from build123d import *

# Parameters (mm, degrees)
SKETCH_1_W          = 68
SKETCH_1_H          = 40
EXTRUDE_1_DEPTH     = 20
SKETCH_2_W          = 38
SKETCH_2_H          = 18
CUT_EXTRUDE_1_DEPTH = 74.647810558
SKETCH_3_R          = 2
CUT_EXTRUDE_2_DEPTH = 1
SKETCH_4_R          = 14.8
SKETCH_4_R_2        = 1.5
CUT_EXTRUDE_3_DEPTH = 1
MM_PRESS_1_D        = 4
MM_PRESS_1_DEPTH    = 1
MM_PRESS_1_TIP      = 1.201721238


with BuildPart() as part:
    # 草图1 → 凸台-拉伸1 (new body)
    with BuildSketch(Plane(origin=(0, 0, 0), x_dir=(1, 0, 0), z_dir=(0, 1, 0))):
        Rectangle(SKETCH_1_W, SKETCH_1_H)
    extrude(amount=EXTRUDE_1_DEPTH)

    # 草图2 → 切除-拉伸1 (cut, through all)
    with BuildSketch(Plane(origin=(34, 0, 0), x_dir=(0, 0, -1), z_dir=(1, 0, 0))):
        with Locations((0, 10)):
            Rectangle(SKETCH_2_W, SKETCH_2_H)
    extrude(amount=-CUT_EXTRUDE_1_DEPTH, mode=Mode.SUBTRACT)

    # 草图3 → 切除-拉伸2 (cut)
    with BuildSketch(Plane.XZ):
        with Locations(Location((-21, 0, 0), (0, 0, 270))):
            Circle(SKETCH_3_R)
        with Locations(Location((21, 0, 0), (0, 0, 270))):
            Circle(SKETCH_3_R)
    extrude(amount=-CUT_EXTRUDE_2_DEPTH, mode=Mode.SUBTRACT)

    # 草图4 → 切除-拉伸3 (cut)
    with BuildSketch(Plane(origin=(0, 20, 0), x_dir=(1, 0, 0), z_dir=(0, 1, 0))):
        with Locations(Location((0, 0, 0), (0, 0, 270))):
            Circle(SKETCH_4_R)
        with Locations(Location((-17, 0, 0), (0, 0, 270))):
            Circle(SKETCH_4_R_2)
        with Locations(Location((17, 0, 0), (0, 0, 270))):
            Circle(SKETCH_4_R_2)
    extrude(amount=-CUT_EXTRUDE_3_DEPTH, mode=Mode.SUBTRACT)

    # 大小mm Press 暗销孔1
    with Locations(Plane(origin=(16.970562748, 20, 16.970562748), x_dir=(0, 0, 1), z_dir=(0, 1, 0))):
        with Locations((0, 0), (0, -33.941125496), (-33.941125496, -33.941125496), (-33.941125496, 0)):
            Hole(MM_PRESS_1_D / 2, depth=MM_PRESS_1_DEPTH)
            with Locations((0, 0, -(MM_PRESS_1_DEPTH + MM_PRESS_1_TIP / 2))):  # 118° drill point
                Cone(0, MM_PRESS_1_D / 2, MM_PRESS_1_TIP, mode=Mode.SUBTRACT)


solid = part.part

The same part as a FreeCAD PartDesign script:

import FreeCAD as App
import Part
import Sketcher

doc = App.newDocument("Part")
body = doc.addObject("PartDesign::Body", "Body")

# Sketch on XZ plane
sketch1 = body.newObject("Sketcher::SketchObject", "Sketch")
sketch1.AttachmentSupport = (doc.getObject("XZ_Plane"), [""])
sketch1.MapMode = "FlatFace"
sketch1.addGeometry([
    Part.LineSegment(App.Vector(-34, -20, 0), App.Vector(-34, 20, 0)),
    Part.LineSegment(App.Vector(-34, 20, 0), App.Vector(34, 20, 0)),
    Part.LineSegment(App.Vector(34, 20, 0), App.Vector(34, -20, 0)),
    Part.LineSegment(App.Vector(34, -20, 0), App.Vector(-34, -20, 0)),
], False)
sketch1.addConstraint([
    Sketcher.Constraint("Coincident", 0, 2, 1, 1),
    Sketcher.Constraint("Coincident", 1, 2, 2, 1),
    Sketcher.Constraint("Coincident", 2, 2, 3, 1),
    Sketcher.Constraint("Coincident", 3, 2, 0, 1),
    Sketcher.Constraint("Vertical", 0),
    Sketcher.Constraint("Horizontal", 1),
    Sketcher.Constraint("Vertical", 2),
    Sketcher.Constraint("Horizontal", 3),
    Sketcher.Constraint("Symmetric", 0, 2, 2, 2, -1, 1),
    Sketcher.Constraint("DistanceX", 1, 1, 1, 2, 68.0),
    Sketcher.Constraint("DistanceY", 0, 1, 0, 2, 40.0),
])
pad1 = body.newObject("PartDesign::Pad", "Pad")
pad1.Profile = sketch1
pad1.Length = 20
pad1.Reversed = True

# Sketch on YZ plane
sketch2 = body.newObject("Sketcher::SketchObject", "Sketch001")
sketch2.AttachmentSupport = (doc.getObject("YZ_Plane"), [""])
sketch2.MapMode = "FlatFace"
sketch2.AttachmentOffset = App.Placement(App.Vector(0, 0, 34), App.Rotation())
sketch2.addGeometry([
    Part.LineSegment(App.Vector(19, 19, 0), App.Vector(1, 19, 0)),
    Part.LineSegment(App.Vector(1, 19, 0), App.Vector(1, -19, 0)),
    Part.LineSegment(App.Vector(1, -19, 0), App.Vector(19, -19, 0)),
    Part.LineSegment(App.Vector(19, -19, 0), App.Vector(19, 19, 0)),
], False)
sketch2.addConstraint([
    Sketcher.Constraint("Coincident", 0, 2, 1, 1),
    Sketcher.Constraint("Coincident", 1, 2, 2, 1),
    Sketcher.Constraint("Coincident", 2, 2, 3, 1),
    Sketcher.Constraint("Coincident", 3, 2, 0, 1),
    Sketcher.Constraint("Horizontal", 0),
    Sketcher.Constraint("Vertical", 1),
    Sketcher.Constraint("Horizontal", 2),
    Sketcher.Constraint("Vertical", 3),
    Sketcher.Constraint("DistanceX", 0, 2, 0, 1, 18.0),
    Sketcher.Constraint("DistanceY", 1, 2, 1, 1, 38.0),
    Sketcher.Constraint("DistanceX", -1, 1, 0, 2, 1.0),
    Sketcher.Constraint("DistanceY", -1, 1, 0, 2, 19.0),
])
pocket1 = body.newObject("PartDesign::Pocket", "Pocket")
pocket1.Profile = sketch2
pocket1.Type = "ThroughAll"

# Sketch on XZ plane
sketch3 = body.newObject("Sketcher::SketchObject", "Sketch002")
sketch3.AttachmentSupport = (doc.getObject("XZ_Plane"), [""])
sketch3.MapMode = "FlatFace"
sketch3.addGeometry([
    Part.Circle(App.Vector(-21, 0, 0), App.Vector(0, 0, 1), 2),
    Part.Circle(App.Vector(21, 0, 0), App.Vector(0, 0, 1), 2),
], False)
sketch3.addConstraint([
    Sketcher.Constraint("Equal", 0, 1),
    Sketcher.Constraint("Symmetric", 0, 3, 1, 3, -1, 1),
    Sketcher.Constraint("PointOnObject", 0, 3, -1),
    Sketcher.Constraint("Diameter", 0, 4.0),
    Sketcher.Constraint("DistanceX", 0, 3, -1, 1, 21.0),
])
pocket2 = body.newObject("PartDesign::Pocket", "Pocket001")
pocket2.Profile = sketch3
pocket2.Length = 1

# Sketch on XZ plane
sketch4 = body.newObject("Sketcher::SketchObject", "Sketch003")
sketch4.AttachmentSupport = (doc.getObject("XZ_Plane"), [""])
sketch4.MapMode = "FlatFace"
sketch4.AttachmentOffset = App.Placement(App.Vector(0, 0, -20), App.Rotation())
sketch4.addGeometry([
    Part.Circle(App.Vector(0, 0, 0), App.Vector(0, 0, 1), 14.8),
    Part.Circle(App.Vector(-17, 0, 0), App.Vector(0, 0, 1), 1.5),
    Part.Circle(App.Vector(17, 0, 0), App.Vector(0, 0, 1), 1.5),
], False)
sketch4.addConstraint([
    Sketcher.Constraint("Coincident", 0, 3, -1, 1),
    Sketcher.Constraint("Equal", 1, 2),
    Sketcher.Constraint("Symmetric", 1, 3, 2, 3, -1, 1),
    Sketcher.Constraint("PointOnObject", 1, 3, -1),
    Sketcher.Constraint("Diameter", 1, 3.0),
    Sketcher.Constraint("Diameter", 0, 29.6),
    Sketcher.Constraint("DistanceX", 1, 3, -1, 1, 17.0),
])
pocket3 = body.newObject("PartDesign::Pocket", "Pocket002")
pocket3.Profile = sketch4
pocket3.Length = 1
pocket3.Reversed = True

# Sketch on XZ plane
sketch5 = body.newObject("Sketcher::SketchObject", "Sketch004")
sketch5.AttachmentSupport = (doc.getObject("XZ_Plane"), [""])
sketch5.MapMode = "FlatFace"
sketch5.AttachmentOffset = App.Placement(App.Vector(0, 0, -20), App.Rotation())
sketch5.addGeometry([
    Part.Circle(App.Vector(17, 17, 0), App.Vector(0, 0, 1), 2),
    Part.Circle(App.Vector(-17, 17, 0), App.Vector(0, 0, 1), 2),
    Part.Circle(App.Vector(-17, -17, 0), App.Vector(0, 0, 1), 2),
    Part.Circle(App.Vector(17, -17, 0), App.Vector(0, 0, 1), 2),
], False)
sketch5.addConstraint([
    Sketcher.Constraint("Equal", 0, 1),
    Sketcher.Constraint("Equal", 1, 2),
    Sketcher.Constraint("Equal", 2, 3),
    Sketcher.Constraint("Symmetric", 0, 3, 2, 3, -1, 1),
    Sketcher.Constraint("Symmetric", 1, 3, 3, 3, -1, 1),
    Sketcher.Constraint("Symmetric", 0, 3, 1, 3, -2),
    Sketcher.Constraint("Diameter", 0, 4.0),
    Sketcher.Constraint("DistanceX", -1, 1, 0, 3, 16.970563),
    Sketcher.Constraint("DistanceY", -1, 1, 0, 3, 16.970563),
])
doc.recompute()
hole = body.newObject("PartDesign::Hole", "Hole")
hole.Profile = sketch5
hole.ThreadType = "None"
hole.Diameter = 4
hole.DepthType = "Dimension"
hole.Depth = 1
hole.DrillPoint = "Angled"
hole.DrillPointAngle = 118
hole.Reversed = True

doc.recompute()
